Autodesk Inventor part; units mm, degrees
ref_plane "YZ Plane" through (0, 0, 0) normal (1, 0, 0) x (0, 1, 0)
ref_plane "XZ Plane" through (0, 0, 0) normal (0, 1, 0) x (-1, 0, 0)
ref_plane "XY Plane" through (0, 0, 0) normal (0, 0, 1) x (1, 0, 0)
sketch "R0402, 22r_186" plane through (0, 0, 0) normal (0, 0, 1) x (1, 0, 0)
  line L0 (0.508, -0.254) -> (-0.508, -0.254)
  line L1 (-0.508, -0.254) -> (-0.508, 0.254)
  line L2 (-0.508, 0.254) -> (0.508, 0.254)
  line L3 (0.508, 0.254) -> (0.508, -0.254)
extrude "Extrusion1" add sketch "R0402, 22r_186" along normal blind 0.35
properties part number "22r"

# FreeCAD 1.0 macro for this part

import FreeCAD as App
import Part
import Sketcher

V = App.Vector
Q = App.Units.Quantity

doc = App.newDocument("Part")
body = doc.addObject("PartDesign::Body", "Body")

sketch1 = body.newObject("Sketcher::SketchObject", "Sketch")
sketch1.AttachmentSupport = (doc.getObject("XY_Plane"), [""])
sketch1.MapMode = "FlatFace"
sketch1.addGeometry(Part.LineSegment(V(-0.5, -0.3, 0), V(0.5, -0.3, 0)), False)
sketch1.addGeometry(Part.LineSegment(V(0.5, -0.3, 0), V(0.5, 0.3, 0)), False)
sketch1.addGeometry(Part.LineSegment(V(0.5, 0.3, 0), V(-0.5, 0.3, 0)), False)
sketch1.addGeometry(Part.LineSegment(V(-0.5, 0.3, 0), V(-0.5, -0.3, 0)), False)
sketch1.addConstraint(Sketcher.Constraint("Coincident", 0, 2, 1, 1))
sketch1.addConstraint(Sketcher.Constraint("Coincident", 1, 2, 2, 1))
sketch1.addConstraint(Sketcher.Constraint("Coincident", 2, 2, 3, 1))
sketch1.addConstraint(Sketcher.Constraint("Coincident", 3, 2, 0, 1))
sketch1.addConstraint(Sketcher.Constraint("Horizontal", 0))
sketch1.addConstraint(Sketcher.Constraint("Vertical", 1))
sketch1.addConstraint(Sketcher.Constraint("Horizontal", 2))
sketch1.addConstraint(Sketcher.Constraint("Vertical", 3))
sketch1.addConstraint(Sketcher.Constraint("Symmetric", 0, 2, 2, 2, -1, 1))
sketch1.addConstraint(Sketcher.Constraint("DistanceX", 0, 1, 0, 2, Q("0.04 in")))
sketch1.addConstraint(Sketcher.Constraint("DistanceY", 1, 1, 1, 2, Q("0.02 in")))
pad1 = body.newObject("PartDesign::Pad", "Pad")
pad1.Profile = sketch1
pad1.Length = 0.35

doc.recompute()
